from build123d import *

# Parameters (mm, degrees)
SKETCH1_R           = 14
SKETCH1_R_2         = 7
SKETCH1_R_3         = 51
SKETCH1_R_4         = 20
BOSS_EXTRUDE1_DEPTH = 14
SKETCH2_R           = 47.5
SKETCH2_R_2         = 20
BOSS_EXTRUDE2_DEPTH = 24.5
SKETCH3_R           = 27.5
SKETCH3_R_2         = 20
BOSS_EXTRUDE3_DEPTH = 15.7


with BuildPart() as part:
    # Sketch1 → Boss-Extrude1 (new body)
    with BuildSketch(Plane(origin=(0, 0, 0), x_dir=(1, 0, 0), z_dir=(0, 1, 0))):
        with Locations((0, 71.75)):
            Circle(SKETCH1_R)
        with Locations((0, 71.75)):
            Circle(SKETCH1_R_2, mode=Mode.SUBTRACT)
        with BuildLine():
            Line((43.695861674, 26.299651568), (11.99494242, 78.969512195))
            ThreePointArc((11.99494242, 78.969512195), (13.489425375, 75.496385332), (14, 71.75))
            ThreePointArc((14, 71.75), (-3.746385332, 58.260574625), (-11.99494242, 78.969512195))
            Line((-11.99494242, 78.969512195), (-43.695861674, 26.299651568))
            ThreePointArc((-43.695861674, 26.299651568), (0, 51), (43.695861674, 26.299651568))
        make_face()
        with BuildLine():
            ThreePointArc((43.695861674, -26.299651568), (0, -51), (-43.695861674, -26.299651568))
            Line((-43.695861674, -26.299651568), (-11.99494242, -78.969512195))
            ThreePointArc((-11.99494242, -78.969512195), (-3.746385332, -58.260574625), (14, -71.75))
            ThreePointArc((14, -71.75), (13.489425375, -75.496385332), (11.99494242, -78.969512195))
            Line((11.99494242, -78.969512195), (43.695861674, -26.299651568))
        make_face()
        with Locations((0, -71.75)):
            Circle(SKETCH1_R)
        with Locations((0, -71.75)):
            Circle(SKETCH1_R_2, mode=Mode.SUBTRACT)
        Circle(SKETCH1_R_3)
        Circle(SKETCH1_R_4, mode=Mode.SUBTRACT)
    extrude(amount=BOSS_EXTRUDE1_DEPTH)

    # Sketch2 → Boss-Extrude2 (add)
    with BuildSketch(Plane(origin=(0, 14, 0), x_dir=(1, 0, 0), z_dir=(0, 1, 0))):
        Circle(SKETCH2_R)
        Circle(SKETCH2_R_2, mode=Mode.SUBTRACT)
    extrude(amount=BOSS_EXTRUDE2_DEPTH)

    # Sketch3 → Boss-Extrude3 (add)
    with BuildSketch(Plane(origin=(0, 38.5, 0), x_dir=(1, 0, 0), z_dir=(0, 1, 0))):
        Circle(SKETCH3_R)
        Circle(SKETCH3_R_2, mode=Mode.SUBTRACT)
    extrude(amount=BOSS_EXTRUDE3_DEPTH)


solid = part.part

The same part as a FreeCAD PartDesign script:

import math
import FreeCAD as App
import Part
import Sketcher
Q = App.Units.Quantity

doc = App.newDocument("Part")
body = doc.addObject("PartDesign::Body", "Body")

# Sketch on XZ plane
sketch1 = body.newObject("Sketcher::SketchObject", "Sketch")
sketch1.AttachmentSupport = (doc.getObject("XZ_Plane"), [""])
sketch1.MapMode = "FlatFace"
sketch1.addGeometry(Part.ArcOfCircle(Part.Circle(App.Vector(0, -72, 0), App.Vector(0, 0, 1), 14), math.radians(-149), math.radians(-31)), False)
sketch1.addGeometry(Part.LineSegment(App.Vector(-12, -79, 0), App.Vector(-44, -26, 0)), False)
sketch1.addGeometry(Part.ArcOfCircle(Part.Circle(App.Vector(0, 0, 0), App.Vector(0, 0, 1), 51), math.radians(149), math.radians(211)), False)
sketch1.addGeometry(Part.LineSegment(App.Vector(-44, 26, 0), App.Vector(-12, 79, 0)), False)
sketch1.addGeometry(Part.ArcOfCircle(Part.Circle(App.Vector(0, 72, 0), App.Vector(0, 0, 1), 14), math.radians(31), math.radians(149)), False)
sketch1.addGeometry(Part.LineSegment(App.Vector(12, 79, 0), App.Vector(44, 26, 0)), False)
sketch1.addGeometry(Part.ArcOfCircle(Part.Circle(App.Vector(0, 0, 0), App.Vector(0, 0, 1), 51), math.radians(-31), math.radians(31)), False)
sketch1.addGeometry(Part.LineSegment(App.Vector(44, -26, 0), App.Vector(12, -79, 0)), False)
sketch1.addGeometry(Part.Circle(App.Vector(0, 72, 0), App.Vector(0, 0, 1), 7), False)
sketch1.addGeometry(Part.Circle(App.Vector(0, 0, 0), App.Vector(0, 0, 1), 20), False)
sketch1.addGeometry(Part.Circle(App.Vector(0, -72, 0), App.Vector(0, 0, 1), 7), False)
sketch1.addConstraint(Sketcher.Constraint("Tangent", 0, 1, 1, 1))
sketch1.addConstraint(Sketcher.Constraint("Tangent", 1, 2, 2, 2))
sketch1.addConstraint(Sketcher.Constraint("Tangent", 2, 1, 3, 1))
sketch1.addConstraint(Sketcher.Constraint("Tangent", 3, 2, 4, 2))
sketch1.addConstraint(Sketcher.Constraint("Tangent", 4, 1, 5, 1))
sketch1.addConstraint(Sketcher.Constraint("Tangent", 5, 2, 6, 2))
sketch1.addConstraint(Sketcher.Constraint("Tangent", 6, 1, 7, 1))
sketch1.addConstraint(Sketcher.Constraint("Tangent", 7, 2, 0, 2))
sketch1.addConstraint(Sketcher.Constraint("Coincident", 2, 3, -1, 1))
sketch1.addConstraint(Sketcher.Constraint("Coincident", 6, 3, -1, 1))
sketch1.addConstraint(Sketcher.Constraint("Coincident", 9, 3, -1, 1))
sketch1.addConstraint(Sketcher.Constraint("Coincident", 8, 3, 4, 3))
sketch1.addConstraint(Sketcher.Constraint("Coincident", 10, 3, 0, 3))
sketch1.addConstraint(Sketcher.Constraint("Equal", 0, 4))
sketch1.addConstraint(Sketcher.Constraint("Equal", 2, 6))
sketch1.addConstraint(Sketcher.Constraint("Equal", 8, 10))
sketch1.addConstraint(Sketcher.Constraint("Symmetric", 0, 3, 4, 3, -1, 1))
sketch1.addConstraint(Sketcher.Constraint("PointOnObject", 0, 3, -2))
sketch1.addConstraint(Sketcher.Constraint("Diameter", 8, Q("14 mm")))
sketch1.addConstraint(Sketcher.Constraint("Diameter", 9, Q("40 mm")))
sketch1.addConstraint(Sketcher.Constraint("Radius", 0, Q("14 mm")))
sketch1.addConstraint(Sketcher.Constraint("Radius", 2, Q("51 mm")))
sketch1.addConstraint(Sketcher.Constraint("DistanceY", 0, 3, 4, 3, Q("143.5 mm")))
pad1 = body.newObject("PartDesign::Pad", "Pad")
pad1.Profile = sketch1
pad1.Length = 14
pad1.Reversed = True

# Sketch on XZ plane
sketch2 = body.newObject("Sketcher::SketchObject", "Sketch001")
sketch2.AttachmentSupport = (doc.getObject("XZ_Plane"), [""])
sketch2.MapMode = "FlatFace"
sketch2.AttachmentOffset = App.Placement(App.Vector(0, 0, -14), App.Rotation())
sketch2.addGeometry(Part.Circle(App.Vector(0, 0, 0), App.Vector(0, 0, 1), 48), False)
sketch2.addGeometry(Part.Circle(App.Vector(0, 0, 0), App.Vector(0, 0, 1), 20), False)
sketch2.addConstraint(Sketcher.Constraint("Coincident", 0, 3, -1, 1))
sketch2.addConstraint(Sketcher.Constraint("Coincident", 1, 3, -1, 1))
sketch2.addConstraint(Sketcher.Constraint("Diameter", 0, Q("95 mm")))
sketch2.addConstraint(Sketcher.Constraint("Diameter", 1, Q("40 mm")))
pad2 = body.newObject("PartDesign::Pad", "Pad001")
pad2.Profile = sketch2
pad2.Length = 24.5
pad2.Reversed = True

# Sketch on XZ plane
sketch3 = body.newObject("Sketcher::SketchObject", "Sketch002")
sketch3.AttachmentSupport = (doc.getObject("XZ_Plane"), [""])
sketch3.MapMode = "FlatFace"
sketch3.AttachmentOffset = App.Placement(App.Vector(0, 0, -38.5), App.Rotation())
sketch3.addGeometry(Part.Circle(App.Vector(0, 0, 0), App.Vector(0, 0, 1), 28), False)
sketch3.addGeometry(Part.Circle(App.Vector(0, 0, 0), App.Vector(0, 0, 1), 20), False)
sketch3.addConstraint(Sketcher.Constraint("Coincident", 0, 3, -1, 1))
sketch3.addConstraint(Sketcher.Constraint("Coincident", 1, 3, -1, 1))
sketch3.addConstraint(Sketcher.Constraint("Diameter", 0, Q("55 mm")))
sketch3.addConstraint(Sketcher.Constraint("Diameter", 1, Q("40 mm")))
pad3 = body.newObject("PartDesign::Pad", "Pad002")
pad3.Profile = sketch3
pad3.Length = 15.7
pad3.Reversed = True

doc.recompute()
